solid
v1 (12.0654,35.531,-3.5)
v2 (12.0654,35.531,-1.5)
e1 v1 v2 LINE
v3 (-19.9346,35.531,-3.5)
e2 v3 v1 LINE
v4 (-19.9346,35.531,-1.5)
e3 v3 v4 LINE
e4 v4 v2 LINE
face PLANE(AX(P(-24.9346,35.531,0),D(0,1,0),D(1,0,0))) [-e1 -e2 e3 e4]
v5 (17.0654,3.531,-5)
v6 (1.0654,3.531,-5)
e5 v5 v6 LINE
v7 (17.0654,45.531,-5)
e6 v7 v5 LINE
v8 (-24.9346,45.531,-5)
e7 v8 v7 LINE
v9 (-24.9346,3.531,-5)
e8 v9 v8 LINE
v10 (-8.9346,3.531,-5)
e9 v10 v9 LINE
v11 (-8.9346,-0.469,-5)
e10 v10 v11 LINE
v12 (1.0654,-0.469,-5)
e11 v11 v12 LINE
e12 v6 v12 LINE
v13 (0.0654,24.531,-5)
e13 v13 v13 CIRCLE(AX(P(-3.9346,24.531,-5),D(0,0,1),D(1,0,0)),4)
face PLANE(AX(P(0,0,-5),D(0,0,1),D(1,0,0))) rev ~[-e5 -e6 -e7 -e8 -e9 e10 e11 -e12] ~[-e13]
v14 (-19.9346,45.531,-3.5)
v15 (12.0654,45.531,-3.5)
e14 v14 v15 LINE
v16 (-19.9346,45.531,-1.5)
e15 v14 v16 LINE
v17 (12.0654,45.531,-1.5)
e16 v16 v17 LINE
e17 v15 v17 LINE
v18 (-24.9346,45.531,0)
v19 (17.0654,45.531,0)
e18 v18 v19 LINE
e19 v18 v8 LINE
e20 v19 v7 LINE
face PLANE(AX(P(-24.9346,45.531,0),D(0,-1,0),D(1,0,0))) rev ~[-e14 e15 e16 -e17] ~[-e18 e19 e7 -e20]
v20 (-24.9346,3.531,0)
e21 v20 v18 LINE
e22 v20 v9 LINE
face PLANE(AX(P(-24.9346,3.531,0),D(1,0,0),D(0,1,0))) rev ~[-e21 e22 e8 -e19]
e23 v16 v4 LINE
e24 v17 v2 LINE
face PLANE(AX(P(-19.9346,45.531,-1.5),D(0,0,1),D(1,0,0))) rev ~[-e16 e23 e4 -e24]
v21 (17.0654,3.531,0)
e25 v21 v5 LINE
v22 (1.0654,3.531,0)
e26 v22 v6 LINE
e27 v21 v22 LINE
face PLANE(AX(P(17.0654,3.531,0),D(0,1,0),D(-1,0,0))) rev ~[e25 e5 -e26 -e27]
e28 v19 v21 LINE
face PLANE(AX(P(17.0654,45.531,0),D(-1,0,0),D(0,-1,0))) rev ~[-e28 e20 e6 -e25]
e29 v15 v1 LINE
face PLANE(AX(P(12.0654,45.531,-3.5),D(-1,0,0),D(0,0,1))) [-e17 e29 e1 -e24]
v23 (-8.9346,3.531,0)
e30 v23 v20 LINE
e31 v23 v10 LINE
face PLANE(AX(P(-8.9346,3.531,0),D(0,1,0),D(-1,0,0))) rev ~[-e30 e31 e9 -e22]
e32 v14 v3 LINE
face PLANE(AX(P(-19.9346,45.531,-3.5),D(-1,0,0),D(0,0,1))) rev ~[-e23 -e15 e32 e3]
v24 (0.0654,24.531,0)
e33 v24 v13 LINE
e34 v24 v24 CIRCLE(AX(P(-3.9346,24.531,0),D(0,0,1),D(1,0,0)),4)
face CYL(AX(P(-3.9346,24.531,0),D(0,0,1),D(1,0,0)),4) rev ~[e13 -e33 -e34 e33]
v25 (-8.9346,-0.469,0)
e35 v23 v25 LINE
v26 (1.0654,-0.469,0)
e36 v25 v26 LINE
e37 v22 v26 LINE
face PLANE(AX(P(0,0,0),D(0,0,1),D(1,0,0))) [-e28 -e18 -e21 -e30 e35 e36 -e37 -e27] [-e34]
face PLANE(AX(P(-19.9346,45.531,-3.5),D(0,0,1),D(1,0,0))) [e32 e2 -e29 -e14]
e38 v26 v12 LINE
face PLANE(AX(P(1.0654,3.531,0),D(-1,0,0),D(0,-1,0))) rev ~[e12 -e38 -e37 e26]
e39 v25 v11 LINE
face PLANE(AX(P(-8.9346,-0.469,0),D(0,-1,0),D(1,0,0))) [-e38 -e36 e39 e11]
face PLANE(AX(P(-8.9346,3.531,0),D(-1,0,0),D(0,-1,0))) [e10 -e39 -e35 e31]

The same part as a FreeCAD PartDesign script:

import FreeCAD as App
import Part
import Sketcher
Q = App.Units.Quantity


def add_polygon(sketch, points):
    """Adds a closed chain of lines whose ends are joined by coincident constraints."""
    first, n = sketch.GeometryCount, len(points)
    for a, b in zip(points, points[1:] + points[:1]):
        sketch.addGeometry(Part.LineSegment(App.Vector(*a, 0), App.Vector(*b, 0)), False)
    for i in range(n):
        sketch.addConstraint(Sketcher.Constraint("Coincident", first + i, 2, first + (i + 1) % n, 1))

doc = App.newDocument("Part")
body = doc.addObject("PartDesign::Body", "Body")

sketch1 = body.newObject("Sketcher::SketchObject", "Sketch")
sketch1.AttachmentSupport = (doc.getObject("XY_Plane"), [""])
sketch1.MapMode = "FlatFace"
add_polygon(sketch1, [(-24.9, 3.5), (-8.9, 3.5), (-8.9, -0.5), (1.1, -0.5), (1.1, 3.5), (17.1, 3.5), (17.1, 45.5), (-24.9, 45.5)])
sketch1.addGeometry(Part.Circle(App.Vector(-3.9, 24.5, 0), App.Vector(0, 0, 1), 4), False)
sketch1.addConstraint(Sketcher.Constraint("Horizontal", 0))
sketch1.addConstraint(Sketcher.Constraint("Vertical", 1))
sketch1.addConstraint(Sketcher.Constraint("Horizontal", 2))
sketch1.addConstraint(Sketcher.Constraint("Vertical", 3))
sketch1.addConstraint(Sketcher.Constraint("Horizontal", 4))
sketch1.addConstraint(Sketcher.Constraint("Vertical", 5))
sketch1.addConstraint(Sketcher.Constraint("Horizontal", 6))
sketch1.addConstraint(Sketcher.Constraint("Vertical", 7))
sketch1.addConstraint(Sketcher.Constraint("Horizontal", 0, 2, 3, 2))
sketch1.addConstraint(Sketcher.Constraint("Equal", 0, 4))
sketch1.addConstraint(Sketcher.Constraint("Equal", 6, 5))
sketch1.addConstraint(Sketcher.Constraint("Diameter", 8, Q("8 mm")))
sketch1.addConstraint(Sketcher.Constraint("DistanceX", 0, 1, 0, 2, Q("16 mm")))
sketch1.addConstraint(Sketcher.Constraint("DistanceX", 2, 1, 2, 2, Q("10 mm")))
sketch1.addConstraint(Sketcher.Constraint("DistanceY", 1, 2, 1, 1, Q("4 mm")))
sketch1.addConstraint(Sketcher.Constraint("DistanceX", 0, 2, 8, 3, Q("5 mm")))
sketch1.addConstraint(Sketcher.Constraint("DistanceY", 0, 2, 8, 3, Q("21 mm")))
sketch1.addConstraint(Sketcher.Constraint("DistanceY", -1, 1, 8, 3, Q("24.531 mm")))
sketch1.addConstraint(Sketcher.Constraint("DistanceX", 8, 3, -1, 1, Q("3.9346 mm")))
pad1 = body.newObject("PartDesign::Pad", "Pad")
pad1.Profile = sketch1
pad1.Length = 5
pad1.Reversed = True

sketch2 = body.newObject("Sketcher::SketchObject", "Sketch001")
sketch2.AttachmentSupport = (doc.getObject("XZ_Plane"), [""])
sketch2.MapMode = "FlatFace"
sketch2.AttachmentOffset = App.Placement(App.Vector(0, 0, -45.531), App.Rotation())
add_polygon(sketch2, [(12.1, -3.5), (-19.9, -3.5), (-19.9, -1.5), (12.1, -1.5)])
sketch2.addConstraint(Sketcher.Constraint("Horizontal", 0))
sketch2.addConstraint(Sketcher.Constraint("Vertical", 1))
sketch2.addConstraint(Sketcher.Constraint("Horizontal", 2))
sketch2.addConstraint(Sketcher.Constraint("Vertical", 3))
sketch2.addConstraint(Sketcher.Constraint("DistanceX", 0, 2, 0, 1, Q("32 mm")))
sketch2.addConstraint(Sketcher.Constraint("DistanceY", 1, 1, 1, 2, Q("2 mm")))
sketch2.addConstraint(Sketcher.Constraint("DistanceY", 0, 2, -1, 1, Q("3.5 mm")))
sketch2.addConstraint(Sketcher.Constraint("DistanceX", 0, 2, -1, 1, Q("19.9346 mm")))
pocket1 = body.newObject("PartDesign::Pocket", "Pocket")
pocket1.Profile = sketch2
pocket1.Length = 10
pocket1.Reversed = True

doc.recompute()
